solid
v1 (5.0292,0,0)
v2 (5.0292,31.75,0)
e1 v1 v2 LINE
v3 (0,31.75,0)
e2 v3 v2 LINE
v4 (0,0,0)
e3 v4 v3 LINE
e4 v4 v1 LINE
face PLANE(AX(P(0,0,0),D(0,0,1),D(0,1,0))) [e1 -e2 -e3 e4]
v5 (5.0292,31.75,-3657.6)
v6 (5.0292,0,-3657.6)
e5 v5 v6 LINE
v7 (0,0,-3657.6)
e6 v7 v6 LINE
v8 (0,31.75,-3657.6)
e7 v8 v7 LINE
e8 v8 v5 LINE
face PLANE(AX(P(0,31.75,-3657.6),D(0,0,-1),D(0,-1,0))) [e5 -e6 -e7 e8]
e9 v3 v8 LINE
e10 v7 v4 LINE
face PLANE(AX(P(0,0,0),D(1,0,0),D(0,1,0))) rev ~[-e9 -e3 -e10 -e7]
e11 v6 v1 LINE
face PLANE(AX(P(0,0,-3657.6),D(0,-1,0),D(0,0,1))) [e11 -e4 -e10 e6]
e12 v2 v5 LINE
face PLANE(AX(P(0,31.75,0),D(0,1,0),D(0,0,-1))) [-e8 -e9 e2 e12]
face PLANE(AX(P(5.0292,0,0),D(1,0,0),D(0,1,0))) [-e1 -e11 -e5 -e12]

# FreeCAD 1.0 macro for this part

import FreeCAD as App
import Part
import Sketcher

V = App.Vector
Q = App.Units.Quantity


def add_polygon(sketch, points):
    """Adds a closed chain of lines whose ends are joined by coincident constraints."""
    first, n = sketch.GeometryCount, len(points)
    for a, b in zip(points, points[1:] + points[:1]):
        sketch.addGeometry(Part.LineSegment(App.Vector(*a, 0), App.Vector(*b, 0)), False)
    for i in range(n):
        sketch.addConstraint(Sketcher.Constraint("Coincident", first + i, 2, first + (i + 1) % n, 1))

doc = App.newDocument("Part")
body = doc.addObject("PartDesign::Body", "Body")

sketch1 = doc.addObject("Sketcher::SketchObject", "Sketch")
body.addObject(sketch1)
sketch1.AttachmentSupport = (doc.YZ_Plane, [""])
sketch1.MapMode = "FlatFace"
add_polygon(sketch1, [(32, 0), (0, 0), (0, -3658), (32, -3658)])
sketch1.addConstraint(Sketcher.Constraint("Horizontal", 0))
sketch1.addConstraint(Sketcher.Constraint("Vertical", 1))
sketch1.addConstraint(Sketcher.Constraint("Horizontal", 2))
sketch1.addConstraint(Sketcher.Constraint("Vertical", 3))
sketch1.addConstraint(Sketcher.Constraint("Coincident", 0, 2, -1, 1))
sketch1.addConstraint(Sketcher.Constraint("DistanceY", 1, 2, 1, 1, Q("144 in")))
sketch1.addConstraint(Sketcher.Constraint("DistanceX", 0, 2, 0, 1, Q("1.25 in")))
pad1 = doc.addObject("PartDesign::Pad", "Pad")
body.addObject(pad1)
pad1.Profile = sketch1
pad1.Length = Q("0.198 in")

doc.recompute()
